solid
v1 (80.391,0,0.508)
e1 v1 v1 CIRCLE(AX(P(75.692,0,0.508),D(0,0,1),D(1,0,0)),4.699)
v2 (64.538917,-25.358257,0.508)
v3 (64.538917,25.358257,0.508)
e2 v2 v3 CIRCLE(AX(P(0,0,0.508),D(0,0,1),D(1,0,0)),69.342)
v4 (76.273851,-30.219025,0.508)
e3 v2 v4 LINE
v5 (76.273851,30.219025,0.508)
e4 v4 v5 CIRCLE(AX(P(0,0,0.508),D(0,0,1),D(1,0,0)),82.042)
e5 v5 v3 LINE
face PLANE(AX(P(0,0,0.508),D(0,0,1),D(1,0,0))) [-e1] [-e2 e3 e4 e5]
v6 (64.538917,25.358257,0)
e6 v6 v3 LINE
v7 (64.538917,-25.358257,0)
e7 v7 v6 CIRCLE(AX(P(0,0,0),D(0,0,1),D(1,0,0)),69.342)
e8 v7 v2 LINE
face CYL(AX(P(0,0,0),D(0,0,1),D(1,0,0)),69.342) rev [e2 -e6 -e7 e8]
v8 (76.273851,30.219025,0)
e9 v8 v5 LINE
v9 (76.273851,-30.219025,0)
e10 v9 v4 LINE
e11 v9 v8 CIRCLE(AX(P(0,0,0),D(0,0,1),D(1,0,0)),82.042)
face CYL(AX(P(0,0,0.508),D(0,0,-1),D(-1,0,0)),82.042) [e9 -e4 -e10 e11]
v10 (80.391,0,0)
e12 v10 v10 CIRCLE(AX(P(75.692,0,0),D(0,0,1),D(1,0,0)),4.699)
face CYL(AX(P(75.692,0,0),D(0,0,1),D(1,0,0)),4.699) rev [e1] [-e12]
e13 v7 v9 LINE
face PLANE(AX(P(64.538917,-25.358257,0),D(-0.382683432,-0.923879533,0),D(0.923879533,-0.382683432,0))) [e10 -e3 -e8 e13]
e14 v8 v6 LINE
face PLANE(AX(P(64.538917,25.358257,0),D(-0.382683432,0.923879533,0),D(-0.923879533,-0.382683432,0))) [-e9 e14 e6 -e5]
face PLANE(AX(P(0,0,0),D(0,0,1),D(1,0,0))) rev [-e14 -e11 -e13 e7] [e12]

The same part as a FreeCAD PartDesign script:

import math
import FreeCAD as App
import Part
import Sketcher

V = App.Vector
Q = App.Units.Quantity


def add_polygon(sketch, points):
    """Adds a closed chain of lines whose ends are joined by coincident constraints."""
    first, n = sketch.GeometryCount, len(points)
    for a, b in zip(points, points[1:] + points[:1]):
        sketch.addGeometry(Part.LineSegment(App.Vector(*a, 0), App.Vector(*b, 0)), False)
    for i in range(n):
        sketch.addConstraint(Sketcher.Constraint("Coincident", first + i, 2, first + (i + 1) % n, 1))

doc = App.newDocument("Part")
body = doc.addObject("PartDesign::Body", "Body")

# Sketch on XY plane
sketch1 = body.newObject("Sketcher::SketchObject", "Sketch")
sketch1.AttachmentSupport = (doc.getObject("XY_Plane"), [""])
sketch1.MapMode = "FlatFace"
sketch1.addGeometry(Part.Circle(V(0, 0, 0), V(0, 0, 1), 82), False)
sketch1.addConstraint([
    Sketcher.Constraint("Coincident", 0, 3, -1, 1),
    Sketcher.Constraint("Diameter", 0, Q("6.46 in")),
])
pad1 = body.newObject("PartDesign::Pad", "Pad")
pad1.Profile = sketch1
pad1.Length = Q("0.02 in")

# Sketch on XY plane
sketch2 = body.newObject("Sketcher::SketchObject", "Sketch001")
sketch2.AttachmentSupport = (doc.getObject("XY_Plane"), [""])
sketch2.MapMode = "FlatFace"
sketch2.AttachmentOffset = App.Placement(V(0, 0, 0.02 * 25.4), App.Rotation())
sketch2.addGeometry(Part.Circle(V(0, 0, 0), V(0, 0, 1), 69), False)
sketch2.addConstraint([
    Sketcher.Constraint("Coincident", 0, 3, -1, 1),
    Sketcher.Constraint("Diameter", 0, Q("5.46 in")),
])
pocket1 = body.newObject("PartDesign::Pocket", "Pocket")
pocket1.Profile = sketch2
pocket1.Type = "ThroughAll"

# Sketch on XY plane
sketch3 = body.newObject("Sketcher::SketchObject", "Sketch002")
sketch3.AttachmentSupport = (doc.getObject("XY_Plane"), [""])
sketch3.MapMode = "FlatFace"
sketch3.AttachmentOffset = App.Placement(V(0, 0, 0.02 * 25.4), App.Rotation())
sketch3.addGeometry(Part.Circle(V(75.7, 0, 0), V(0, 0, 1), 4.7), False)
sketch3.addConstraint([
    Sketcher.Constraint("PointOnObject", 0, 3, -1),
    Sketcher.Constraint("Diameter", 0, Q("0.37 in")),
    Sketcher.Constraint("DistanceX", -1, 1, 0, 3, Q("2.98 in")),
])
pocket2 = body.newObject("PartDesign::Pocket", "Pocket001")
pocket2.Profile = sketch3
pocket2.Type = "ThroughAll"

# Sketch on XY plane
sketch4 = body.newObject("Sketcher::SketchObject", "Sketch003")
sketch4.AttachmentSupport = (doc.getObject("XY_Plane"), [""])
sketch4.MapMode = "FlatFace"
sketch4.AttachmentOffset = App.Placement(V(0, 0, 0.02 * 25.4), App.Rotation())
add_polygon(sketch4, [(-106, 106), (-106, -106), (106, -106), (106, 106)])  # lines 0-3
sketch4.addGeometry(Part.LineSegment(V(76, -30, 0), V(65, -25, 0)), False)  # 4
sketch4.addGeometry(Part.ArcOfCircle(Part.Circle(V(0, 0, 0), V(0, 0, 1), 69), math.radians(-21), math.radians(21)), False)  # 5
sketch4.addGeometry(Part.LineSegment(V(65, 25, 0), V(76, 30, 0)), False)  # 6
sketch4.addGeometry(Part.ArcOfCircle(Part.Circle(V(0, 0, 0), V(0, 0, 1), 82), math.radians(-22), math.radians(22)), False)  # 7
sketch4.addConstraint([
    Sketcher.Constraint("Coincident", 4, 2, 5, 1),
    Sketcher.Constraint("Coincident", 5, 2, 6, 1),
    Sketcher.Constraint("Coincident", 6, 2, 7, 2),
    Sketcher.Constraint("Coincident", 7, 1, 4, 1),
    Sketcher.Constraint("Vertical", 0),
    Sketcher.Constraint("Horizontal", 1),
    Sketcher.Constraint("Vertical", 2),
    Sketcher.Constraint("Horizontal", 3),
    Sketcher.Constraint("Coincident", 5, 3, -1, 1),
    Sketcher.Constraint("Coincident", 7, 3, -1, 1),
    Sketcher.Constraint("Symmetric", 0, 2, 2, 2, -1, 1),
    Sketcher.Constraint("Vertical", 4, 2, 5, 2),
    Sketcher.Constraint("Vertical", 6, 2, 7, 1),
    Sketcher.Constraint("Equal", 3, 0),
    Sketcher.Constraint("Radius", 5, Q("2.73 in")),
    Sketcher.Constraint("Radius", 7, Q("3.23 in")),
    Sketcher.Constraint("Angle", 4, Q("157.5 deg")),
    Sketcher.Constraint("DistanceX", 1, 1, 1, 2, Q("212.494 mm")),
    Sketcher.Constraint("DistanceX", -1, 1, 6, 2, Q("76.273851 mm")),
])
pocket3 = body.newObject("PartDesign::Pocket", "Pocket002")
pocket3.Profile = sketch4
pocket3.Type = "ThroughAll"

doc.recompute()
